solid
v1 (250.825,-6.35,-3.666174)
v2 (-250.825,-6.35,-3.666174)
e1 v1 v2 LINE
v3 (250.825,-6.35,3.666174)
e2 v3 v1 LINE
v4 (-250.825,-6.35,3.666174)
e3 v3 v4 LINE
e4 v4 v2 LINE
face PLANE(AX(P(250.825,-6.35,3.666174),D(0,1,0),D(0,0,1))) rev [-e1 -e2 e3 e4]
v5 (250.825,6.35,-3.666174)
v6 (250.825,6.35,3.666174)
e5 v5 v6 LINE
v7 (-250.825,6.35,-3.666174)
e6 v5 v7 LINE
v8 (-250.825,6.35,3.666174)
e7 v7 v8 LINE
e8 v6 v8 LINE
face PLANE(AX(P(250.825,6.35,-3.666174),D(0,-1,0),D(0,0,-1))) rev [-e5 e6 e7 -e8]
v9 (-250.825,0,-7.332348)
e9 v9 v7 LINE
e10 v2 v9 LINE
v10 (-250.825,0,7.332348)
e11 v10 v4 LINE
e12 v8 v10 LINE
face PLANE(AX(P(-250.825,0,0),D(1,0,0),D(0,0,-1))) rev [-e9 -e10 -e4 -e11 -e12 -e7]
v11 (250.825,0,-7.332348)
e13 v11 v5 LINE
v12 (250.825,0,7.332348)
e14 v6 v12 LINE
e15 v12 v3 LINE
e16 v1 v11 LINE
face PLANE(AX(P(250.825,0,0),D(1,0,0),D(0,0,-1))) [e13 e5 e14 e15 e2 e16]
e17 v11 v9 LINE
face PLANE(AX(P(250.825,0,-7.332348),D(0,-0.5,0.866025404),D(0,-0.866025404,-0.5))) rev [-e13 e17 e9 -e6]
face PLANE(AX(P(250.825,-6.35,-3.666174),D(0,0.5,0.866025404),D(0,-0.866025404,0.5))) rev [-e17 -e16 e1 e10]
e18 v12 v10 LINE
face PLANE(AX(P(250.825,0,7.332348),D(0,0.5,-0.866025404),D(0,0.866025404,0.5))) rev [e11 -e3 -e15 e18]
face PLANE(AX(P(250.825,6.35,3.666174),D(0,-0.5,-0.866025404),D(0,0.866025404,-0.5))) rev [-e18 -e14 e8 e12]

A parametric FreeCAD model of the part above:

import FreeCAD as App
import Part
import Sketcher

V = App.Vector
Q = App.Units.Quantity

doc = App.newDocument("Part")
body = doc.addObject("PartDesign::Body", "Body")

# Sketch on YZ plane
sketch1 = doc.addObject("Sketcher::SketchObject", "Sketch")
body.addObject(sketch1)
sketch1.AttachmentSupport = (doc.YZ_Plane, [""])
sketch1.MapMode = "FlatFace"
sketch1.addGeometry([
    Part.LineSegment(V(6, 4, 0), V(0, 7, 0)),  # 0
    Part.LineSegment(V(0, 7, 0), V(-6, 4, 0)),  # 1
    Part.LineSegment(V(-6, 4, 0), V(-6, -4, 0)),  # 2
    Part.LineSegment(V(-6, -4, 0), V(0, -7, 0)),  # 3
    Part.LineSegment(V(0, -7, 0), V(6, -4, 0)),  # 4
    Part.LineSegment(V(6, -4, 0), V(6, 4, 0)),  # 5
], False)
sketch1.addConstraint([
    Sketcher.Constraint("Coincident", 0, 2, 1, 1),
    Sketcher.Constraint("Coincident", 1, 2, 2, 1),
    Sketcher.Constraint("Coincident", 2, 2, 3, 1),
    Sketcher.Constraint("Coincident", 3, 2, 4, 1),
    Sketcher.Constraint("Coincident", 4, 2, 5, 1),
    Sketcher.Constraint("Coincident", 5, 2, 0, 1),
    Sketcher.Constraint("Vertical", 2),
    Sketcher.Constraint("Vertical", 5),
    Sketcher.Constraint("Symmetric", 0, 2, 3, 2, -1, 1),
    Sketcher.Constraint("Symmetric", 1, 2, 4, 2, -1, 1),
    Sketcher.Constraint("PointOnObject", 0, 2, -2),
    Sketcher.Constraint("Parallel", 0, 3),
    Sketcher.Constraint("Horizontal", 2, 2, 4, 2),
    Sketcher.Constraint("Angle", 0, Q("150 deg")),
    Sketcher.Constraint("DistanceX", 2, 2, 4, 2, Q("0.5 in")),
    Sketcher.Constraint("DistanceY", 2, 2, 2, 1, Q("7.332348 mm")),
])
pad1 = doc.addObject("PartDesign::Pad", "Pad")
body.addObject(pad1)
pad1.Profile = sketch1
pad1.Length = Q("19.75 in")
pad1.Midplane = True

doc.recompute()
